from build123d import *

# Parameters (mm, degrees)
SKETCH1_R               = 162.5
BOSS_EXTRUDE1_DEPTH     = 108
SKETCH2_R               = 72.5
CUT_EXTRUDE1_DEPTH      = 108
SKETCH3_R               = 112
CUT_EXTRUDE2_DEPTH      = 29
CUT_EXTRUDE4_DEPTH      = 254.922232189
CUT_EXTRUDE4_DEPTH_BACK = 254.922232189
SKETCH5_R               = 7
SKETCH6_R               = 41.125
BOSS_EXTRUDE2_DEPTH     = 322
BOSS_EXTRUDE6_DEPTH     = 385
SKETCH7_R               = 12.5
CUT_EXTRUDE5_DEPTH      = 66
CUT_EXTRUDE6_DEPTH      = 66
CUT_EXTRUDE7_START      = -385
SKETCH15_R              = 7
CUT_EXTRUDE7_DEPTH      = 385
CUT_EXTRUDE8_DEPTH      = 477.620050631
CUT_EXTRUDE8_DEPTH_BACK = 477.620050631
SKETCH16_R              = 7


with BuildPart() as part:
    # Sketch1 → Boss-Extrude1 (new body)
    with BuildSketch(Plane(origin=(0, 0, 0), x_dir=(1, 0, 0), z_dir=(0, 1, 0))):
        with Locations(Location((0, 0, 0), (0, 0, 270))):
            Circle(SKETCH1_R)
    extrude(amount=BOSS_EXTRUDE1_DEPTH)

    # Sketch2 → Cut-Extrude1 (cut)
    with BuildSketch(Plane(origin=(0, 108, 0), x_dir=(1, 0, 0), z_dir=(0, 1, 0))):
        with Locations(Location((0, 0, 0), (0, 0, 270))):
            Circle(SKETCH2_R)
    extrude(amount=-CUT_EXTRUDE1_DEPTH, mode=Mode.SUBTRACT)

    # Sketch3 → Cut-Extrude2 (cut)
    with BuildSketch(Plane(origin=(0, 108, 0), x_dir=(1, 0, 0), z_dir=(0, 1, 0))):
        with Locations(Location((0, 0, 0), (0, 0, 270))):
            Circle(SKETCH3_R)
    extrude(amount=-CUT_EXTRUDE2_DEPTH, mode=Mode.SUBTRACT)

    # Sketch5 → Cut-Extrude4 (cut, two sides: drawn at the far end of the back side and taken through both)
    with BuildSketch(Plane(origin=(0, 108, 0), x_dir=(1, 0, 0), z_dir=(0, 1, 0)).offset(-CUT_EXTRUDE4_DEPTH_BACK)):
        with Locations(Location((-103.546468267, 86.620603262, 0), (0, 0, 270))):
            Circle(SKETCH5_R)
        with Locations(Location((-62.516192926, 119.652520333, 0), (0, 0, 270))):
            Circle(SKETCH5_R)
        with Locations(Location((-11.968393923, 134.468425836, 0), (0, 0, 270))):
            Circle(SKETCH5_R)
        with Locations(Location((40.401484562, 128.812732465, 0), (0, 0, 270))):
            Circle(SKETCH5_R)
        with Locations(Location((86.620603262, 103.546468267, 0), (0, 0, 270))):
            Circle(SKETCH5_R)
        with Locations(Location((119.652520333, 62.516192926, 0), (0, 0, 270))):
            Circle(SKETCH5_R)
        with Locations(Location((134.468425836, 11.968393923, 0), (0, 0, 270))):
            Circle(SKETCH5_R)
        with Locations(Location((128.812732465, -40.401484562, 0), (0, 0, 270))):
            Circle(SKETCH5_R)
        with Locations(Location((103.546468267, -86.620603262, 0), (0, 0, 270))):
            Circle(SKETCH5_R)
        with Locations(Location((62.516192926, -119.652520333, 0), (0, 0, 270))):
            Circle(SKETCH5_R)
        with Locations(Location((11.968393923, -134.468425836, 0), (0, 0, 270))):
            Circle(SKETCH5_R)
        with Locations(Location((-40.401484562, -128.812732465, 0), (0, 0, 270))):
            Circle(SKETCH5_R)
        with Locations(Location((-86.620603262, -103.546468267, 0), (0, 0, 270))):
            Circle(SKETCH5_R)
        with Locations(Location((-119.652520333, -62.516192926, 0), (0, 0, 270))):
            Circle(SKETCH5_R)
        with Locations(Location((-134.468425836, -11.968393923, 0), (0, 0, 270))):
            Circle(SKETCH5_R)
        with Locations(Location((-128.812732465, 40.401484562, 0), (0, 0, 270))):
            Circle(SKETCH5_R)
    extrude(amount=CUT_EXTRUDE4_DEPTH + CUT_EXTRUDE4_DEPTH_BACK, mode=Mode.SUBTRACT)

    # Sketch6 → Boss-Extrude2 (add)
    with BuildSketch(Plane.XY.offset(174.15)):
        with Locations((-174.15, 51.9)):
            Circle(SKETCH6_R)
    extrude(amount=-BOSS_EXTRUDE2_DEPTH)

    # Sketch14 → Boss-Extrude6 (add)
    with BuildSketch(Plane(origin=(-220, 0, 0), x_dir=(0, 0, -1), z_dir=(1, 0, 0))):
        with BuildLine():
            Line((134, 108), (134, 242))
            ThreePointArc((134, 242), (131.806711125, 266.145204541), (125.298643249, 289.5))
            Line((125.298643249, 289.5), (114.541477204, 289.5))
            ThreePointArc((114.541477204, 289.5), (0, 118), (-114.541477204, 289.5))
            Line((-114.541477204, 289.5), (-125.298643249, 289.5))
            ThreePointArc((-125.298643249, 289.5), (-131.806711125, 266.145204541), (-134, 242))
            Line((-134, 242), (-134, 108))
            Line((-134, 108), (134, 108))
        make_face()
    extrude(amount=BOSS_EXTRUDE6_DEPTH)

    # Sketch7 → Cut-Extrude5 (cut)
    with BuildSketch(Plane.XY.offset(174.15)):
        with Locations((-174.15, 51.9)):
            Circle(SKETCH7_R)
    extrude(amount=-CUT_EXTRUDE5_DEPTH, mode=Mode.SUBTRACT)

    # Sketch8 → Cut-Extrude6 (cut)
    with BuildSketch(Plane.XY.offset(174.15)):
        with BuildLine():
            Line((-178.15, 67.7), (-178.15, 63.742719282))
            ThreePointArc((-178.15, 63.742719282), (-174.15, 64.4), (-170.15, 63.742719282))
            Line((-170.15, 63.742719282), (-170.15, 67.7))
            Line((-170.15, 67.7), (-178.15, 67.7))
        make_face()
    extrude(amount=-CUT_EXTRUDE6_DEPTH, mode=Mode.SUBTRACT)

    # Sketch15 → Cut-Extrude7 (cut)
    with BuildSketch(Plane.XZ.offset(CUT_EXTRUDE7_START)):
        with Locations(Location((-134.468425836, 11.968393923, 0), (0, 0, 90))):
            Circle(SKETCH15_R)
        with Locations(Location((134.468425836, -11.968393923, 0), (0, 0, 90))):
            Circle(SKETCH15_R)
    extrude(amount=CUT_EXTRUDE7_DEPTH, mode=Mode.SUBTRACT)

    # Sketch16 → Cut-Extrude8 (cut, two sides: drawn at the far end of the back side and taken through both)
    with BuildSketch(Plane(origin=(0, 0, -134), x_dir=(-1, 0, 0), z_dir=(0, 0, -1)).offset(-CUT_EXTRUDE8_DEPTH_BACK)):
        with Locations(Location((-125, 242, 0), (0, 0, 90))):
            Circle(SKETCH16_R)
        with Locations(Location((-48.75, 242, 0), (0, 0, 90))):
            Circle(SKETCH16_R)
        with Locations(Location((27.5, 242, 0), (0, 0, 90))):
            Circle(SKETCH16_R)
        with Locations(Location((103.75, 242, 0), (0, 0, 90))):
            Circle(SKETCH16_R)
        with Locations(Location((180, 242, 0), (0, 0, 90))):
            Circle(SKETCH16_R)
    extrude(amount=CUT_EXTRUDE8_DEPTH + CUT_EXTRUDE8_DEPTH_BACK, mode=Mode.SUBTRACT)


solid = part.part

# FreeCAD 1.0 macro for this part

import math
import FreeCAD as App
import Part
import Sketcher
from FreeCAD import Vector

doc = App.newDocument("Part")
body = doc.addObject("PartDesign::Body", "Body")

sketch1 = body.newObject("Sketcher::SketchObject", "Sketch")
sketch1.AttachmentSupport = (doc.getObject("XZ_Plane"), [""])
sketch1.MapMode = "FlatFace"
sketch1.addGeometry(Part.Circle(Vector(0, 0, 0), Vector(0, 0, 1), 162), False)
sketch1.addConstraint([
    Sketcher.Constraint("Coincident", 0, 3, -1, 1),
    Sketcher.Constraint("Diameter", 0, 325.0),
])
pad1 = body.newObject("PartDesign::Pad", "Pad")
pad1.Profile = sketch1
pad1.Length = 108
pad1.Reversed = True

sketch2 = body.newObject("Sketcher::SketchObject", "Sketch001")
sketch2.AttachmentSupport = (doc.getObject("XZ_Plane"), [""])
sketch2.MapMode = "FlatFace"
sketch2.AttachmentOffset = App.Placement(Vector(0, 0, -108), App.Rotation())
sketch2.addGeometry(Part.Circle(Vector(0, 0, 0), Vector(0, 0, 1), 72), False)
sketch2.addConstraint([
    Sketcher.Constraint("Coincident", 0, 3, -1, 1),
    Sketcher.Constraint("Diameter", 0, 145.0),
])
pocket1 = body.newObject("PartDesign::Pocket", "Pocket")
pocket1.Profile = sketch2
pocket1.Length = 108
pocket1.Reversed = True

sketch3 = body.newObject("Sketcher::SketchObject", "Sketch002")
sketch3.AttachmentSupport = (doc.getObject("XZ_Plane"), [""])
sketch3.MapMode = "FlatFace"
sketch3.AttachmentOffset = App.Placement(Vector(0, 0, -108), App.Rotation())
sketch3.addGeometry(Part.Circle(Vector(0, 0, 0), Vector(0, 0, 1), 112), False)
sketch3.addConstraint([
    Sketcher.Constraint("Coincident", 0, 3, -1, 1),
    Sketcher.Constraint("Diameter", 0, 224.0),
])
pocket2 = body.newObject("PartDesign::Pocket", "Pocket001")
pocket2.Profile = sketch3
pocket2.Length = 29
pocket2.Reversed = True

sketch4 = body.newObject("Sketcher::SketchObject", "Sketch003")
sketch4.AttachmentSupport = (doc.getObject("XZ_Plane"), [""])
sketch4.MapMode = "FlatFace"
sketch4.AttachmentOffset = App.Placement(Vector(0, 0, -108), App.Rotation())
sketch4.addGeometry([
    Part.Circle(Vector(-104, -87, 0), Vector(0, 0, 1), 7),
    Part.Circle(Vector(-63, -120, 0), Vector(0, 0, 1), 7),
    Part.Circle(Vector(-12, -134, 0), Vector(0, 0, 1), 7),
    Part.Circle(Vector(40, -129, 0), Vector(0, 0, 1), 7),
    Part.Circle(Vector(87, -104, 0), Vector(0, 0, 1), 7),
    Part.Circle(Vector(120, -63, 0), Vector(0, 0, 1), 7),
    Part.Circle(Vector(134, -12, 0), Vector(0, 0, 1), 7),
    Part.Circle(Vector(129, 40, 0), Vector(0, 0, 1), 7),
    Part.Circle(Vector(104, 87, 0), Vector(0, 0, 1), 7),
    Part.Circle(Vector(63, 120, 0), Vector(0, 0, 1), 7),
    Part.Circle(Vector(12, 134, 0), Vector(0, 0, 1), 7),
    Part.Circle(Vector(-40, 129, 0), Vector(0, 0, 1), 7),
    Part.Circle(Vector(-87, 104, 0), Vector(0, 0, 1), 7),
    Part.Circle(Vector(-120, 63, 0), Vector(0, 0, 1), 7),
    Part.Circle(Vector(-134, 12, 0), Vector(0, 0, 1), 7),
    Part.Circle(Vector(-129, -40, 0), Vector(0, 0, 1), 7),
], False)
sketch4.addConstraint([
    Sketcher.Constraint("Equal", 0, 1),
    Sketcher.Constraint("Equal", 1, 2),
    Sketcher.Constraint("Equal", 2, 3),
    Sketcher.Constraint("Equal", 3, 4),
    Sketcher.Constraint("Equal", 4, 5),
    Sketcher.Constraint("Equal", 5, 6),
    Sketcher.Constraint("Equal", 6, 7),
    Sketcher.Constraint("Equal", 7, 8),
    Sketcher.Constraint("Equal", 8, 9),
    Sketcher.Constraint("Equal", 9, 10),
    Sketcher.Constraint("Equal", 10, 11),
    Sketcher.Constraint("Equal", 11, 12),
    Sketcher.Constraint("Equal", 12, 13),
    Sketcher.Constraint("Equal", 13, 14),
    Sketcher.Constraint("Equal", 14, 15),
    Sketcher.Constraint("Symmetric", 0, 3, 8, 3, -1, 1),
    Sketcher.Constraint("Symmetric", 1, 3, 9, 3, -1, 1),
    Sketcher.Constraint("Symmetric", 2, 3, 10, 3, -1, 1),
    Sketcher.Constraint("Symmetric", 3, 3, 11, 3, -1, 1),
    Sketcher.Constraint("Symmetric", 4, 3, 12, 3, -1, 1),
    Sketcher.Constraint("Symmetric", 5, 3, 13, 3, -1, 1),
    Sketcher.Constraint("Symmetric", 6, 3, 14, 3, -1, 1),
    Sketcher.Constraint("Symmetric", 7, 3, 15, 3, -1, 1),
    Sketcher.Constraint("Diameter", 0, 14.0),
    Sketcher.Constraint("DistanceX", 1, 3, 2, 3, 50.547799),
    Sketcher.Constraint("DistanceY", 5, 3, 6, 3, 50.547799),
    Sketcher.Constraint("DistanceX", 0, 3, -1, 1, 103.546468),
    Sketcher.Constraint("DistanceY", 1, 3, -1, 1, 119.65252),
    Sketcher.Constraint("DistanceY", 4, 3, -1, 1, 103.546468),
    Sketcher.Constraint("DistanceX", -1, 1, 5, 3, 119.65252),
    Sketcher.Constraint("DistanceX", 2, 3, 3, 3, 52.369878),
    Sketcher.Constraint("DistanceY", 3, 3, 0, 3, 42.192129),
    Sketcher.Constraint("DistanceX", 3, 3, 4, 3, 46.219119),
    Sketcher.Constraint("DistanceX", 0, 3, 4, 3, 190.167072),
    Sketcher.Constraint("DistanceY", 3, 3, 5, 3, 66.29654),
    Sketcher.Constraint("DistanceX", 3, 3, 6, 3, 94.066941),
    Sketcher.Constraint("DistanceY", 2, 3, 6, 3, 122.500032),
    Sketcher.Constraint("DistanceY", 6, 3, 7, 3, 52.369878),
    Sketcher.Constraint("DistanceX", 4, 3, 7, 3, 42.192129),
    Sketcher.Constraint("DistanceY", 7, 3, 8, 3, 46.219119),
])
pocket3 = body.newObject("PartDesign::Pocket", "Pocket002")
pocket3.Profile = sketch4
pocket3.Type = "ThroughAll"
pocket3.Midplane = True

sketch5 = body.newObject("Sketcher::SketchObject", "Sketch004")
sketch5.AttachmentSupport = (doc.getObject("XY_Plane"), [""])
sketch5.MapMode = "FlatFace"
sketch5.AttachmentOffset = App.Placement(Vector(0, 0, 174.15), App.Rotation())
sketch5.addGeometry(Part.Circle(Vector(-174, 52, 0), Vector(0, 0, 1), 41), False)
sketch5.addConstraint([
    Sketcher.Constraint("Diameter", 0, 82.25),
    Sketcher.Constraint("DistanceY", -1, 1, 0, 3, 51.9),
    Sketcher.Constraint("DistanceX", 0, 3, -1, 1, 174.15),
])
pad2 = body.newObject("PartDesign::Pad", "Pad001")
pad2.Profile = sketch5
pad2.Length = 322
pad2.Reversed = True

sketch6 = body.newObject("Sketcher::SketchObject", "Sketch005")
sketch6.AttachmentSupport = (doc.getObject("YZ_Plane"), [""])
sketch6.MapMode = "FlatFace"
sketch6.AttachmentOffset = App.Placement(Vector(0, 0, -220), App.Rotation())
sketch6.addGeometry([
    Part.LineSegment(Vector(108, -134, 0), Vector(242, -134, 0)),
    Part.ArcOfCircle(Part.Circle(Vector(242, 0, 0), Vector(0, 0, 1), 134), math.radians(-90), math.radians(-69)),
    Part.LineSegment(Vector(290, -125, 0), Vector(290, -115, 0)),
    Part.ArcOfCircle(Part.Circle(Vector(242, 0, 0), Vector(0, 0, 1), 124), math.radians(67), math.radians(293)),
    Part.LineSegment(Vector(290, 115, 0), Vector(290, 125, 0)),
    Part.ArcOfCircle(Part.Circle(Vector(242, 0, 0), Vector(0, 0, 1), 134), math.radians(69), math.radians(90)),
    Part.LineSegment(Vector(242, 134, 0), Vector(108, 134, 0)),
    Part.LineSegment(Vector(108, 134, 0), Vector(108, -134, 0)),
], False)
sketch6.addConstraint([
    Sketcher.Constraint("Tangent", 0, 2, 1, 1),
    Sketcher.Constraint("Coincident", 1, 2, 2, 1),
    Sketcher.Constraint("Coincident", 2, 2, 3, 2),
    Sketcher.Constraint("Coincident", 3, 1, 4, 1),
    Sketcher.Constraint("Coincident", 4, 2, 5, 1),
    Sketcher.Constraint("Tangent", 5, 2, 6, 1),
    Sketcher.Constraint("Coincident", 6, 2, 7, 1),
    Sketcher.Constraint("Coincident", 7, 2, 0, 1),
    Sketcher.Constraint("Horizontal", 0),
    Sketcher.Constraint("Vertical", 2),
    Sketcher.Constraint("Vertical", 4),
    Sketcher.Constraint("Horizontal", 6),
    Sketcher.Constraint("Vertical", 7),
    Sketcher.Constraint("Coincident", 3, 3, 1, 3),
    Sketcher.Constraint("Coincident", 5, 3, 1, 3),
    Sketcher.Constraint("Equal", 1, 5),
    Sketcher.Constraint("Symmetric", 2, 2, 3, 1, -1),
    Sketcher.Constraint("Radius", 1, 134.0),
    Sketcher.Constraint("Radius", 3, 124.0),
    Sketcher.Constraint("DistanceX", 0, 1, 0, 2, 134.0),
    Sketcher.Constraint("DistanceX", -1, 1, 1, 3, 242.0),
    Sketcher.Constraint("DistanceX", -1, 1, 1, 2, 289.5),
])
pad3 = body.newObject("PartDesign::Pad", "Pad002")
pad3.Profile = sketch6
pad3.Length = 385

sketch7 = body.newObject("Sketcher::SketchObject", "Sketch006")
sketch7.AttachmentSupport = (doc.getObject("XY_Plane"), [""])
sketch7.MapMode = "FlatFace"
sketch7.AttachmentOffset = App.Placement(Vector(0, 0, 174.15), App.Rotation())
sketch7.addGeometry(Part.Circle(Vector(-174, 52, 0), Vector(0, 0, 1), 12), False)
sketch7.addConstraint([
    Sketcher.Constraint("Diameter", 0, 25.0),
    Sketcher.Constraint("DistanceY", -1, 1, 0, 3, 51.9),
    Sketcher.Constraint("DistanceX", 0, 3, -1, 1, 174.15),
])
pocket4 = body.newObject("PartDesign::Pocket", "Pocket003")
pocket4.Profile = sketch7
pocket4.Length = 66

sketch8 = body.newObject("Sketcher::SketchObject", "Sketch007")
sketch8.AttachmentSupport = (doc.getObject("XY_Plane"), [""])
sketch8.MapMode = "FlatFace"
sketch8.AttachmentOffset = App.Placement(Vector(0, 0, 174.15), App.Rotation())
sketch8.addGeometry([
    Part.LineSegment(Vector(-178.2, 67.7, 0), Vector(-178.2, 63.7, 0)),
    Part.ArcOfCircle(Part.Circle(Vector(-174.2, 51.9, 0), Vector(0, 0, 1), 12.5), math.radians(71), math.radians(109)),
    Part.LineSegment(Vector(-170.2, 63.7, 0), Vector(-170.2, 67.7, 0)),
    Part.LineSegment(Vector(-170.2, 67.7, 0), Vector(-178.2, 67.7, 0)),
], False)
sketch8.addConstraint([
    Sketcher.Constraint("Coincident", 0, 2, 1, 2),
    Sketcher.Constraint("Coincident", 1, 1, 2, 1),
    Sketcher.Constraint("Coincident", 2, 2, 3, 1),
    Sketcher.Constraint("Coincident", 3, 2, 0, 1),
    Sketcher.Constraint("Vertical", 0),
    Sketcher.Constraint("Vertical", 2),
    Sketcher.Constraint("Horizontal", 3),
    Sketcher.Constraint("Horizontal", 0, 2, 1, 1),
    Sketcher.Constraint("Radius", 1, 12.5),
    Sketcher.Constraint("DistanceX", 3, 2, 3, 1, 8.0),
    Sketcher.Constraint("DistanceY", -1, 1, 1, 3, 51.9),
    Sketcher.Constraint("DistanceY", -1, 1, 2, 2, 67.7),
    Sketcher.Constraint("DistanceX", 1, 3, -1, 1, 174.15),
])
pocket5 = body.newObject("PartDesign::Pocket", "Pocket004")
pocket5.Profile = sketch8
pocket5.Length = 66

sketch9 = body.newObject("Sketcher::SketchObject", "Sketch008")
sketch9.AttachmentSupport = (doc.getObject("XZ_Plane"), [""])
sketch9.MapMode = "FlatFace"
sketch9.AttachmentOffset = App.Placement(Vector(0, 0, -385), App.Rotation())
sketch9.addGeometry([
    Part.Circle(Vector(-134, 12, 0), Vector(0, 0, 1), 7),
    Part.Circle(Vector(134, -12, 0), Vector(0, 0, 1), 7),
], False)
sketch9.addConstraint([
    Sketcher.Constraint("Equal", 0, 1),
    Sketcher.Constraint("Symmetric", 0, 3, 1, 3, -1, 1),
    Sketcher.Constraint("Diameter", 0, 14.0),
    Sketcher.Constraint("DistanceX", 0, 3, 1, 3, 268.936852),
    Sketcher.Constraint("DistanceY", -1, 1, 0, 3, 11.968394),
])
pocket6 = body.newObject("PartDesign::Pocket", "Pocket005")
pocket6.Profile = sketch9
pocket6.Length = 385
pocket6.Reversed = True

sketch10 = body.newObject("Sketcher::SketchObject", "Sketch009")
sketch10.AttachmentSupport = (doc.getObject("XY_Plane"), [""])
sketch10.MapMode = "FlatFace"
sketch10.AttachmentOffset = App.Placement(Vector(0, 0, -134), App.Rotation())
sketch10.addGeometry([
    Part.Circle(Vector(125, 242, 0), Vector(0, 0, 1), 7),
    Part.Circle(Vector(49, 242, 0), Vector(0, 0, 1), 7),
    Part.Circle(Vector(-28, 242, 0), Vector(0, 0, 1), 7),
    Part.Circle(Vector(-104, 242, 0), Vector(0, 0, 1), 7),
    Part.Circle(Vector(-180, 242, 0), Vector(0, 0, 1), 7),
], False)
sketch10.addConstraint([
    Sketcher.Constraint("Equal", 0, 1),
    Sketcher.Constraint("Equal", 1, 2),
    Sketcher.Constraint("Equal", 2, 3),
    Sketcher.Constraint("Equal", 3, 4),
    Sketcher.Constraint("Horizontal", 0, 3, 1, 3),
    Sketcher.Constraint("Horizontal", 1, 3, 2, 3),
    Sketcher.Constraint("Horizontal", 2, 3, 3, 3),
    Sketcher.Constraint("Horizontal", 3, 3, 4, 3),
    Sketcher.Constraint("Diameter", 0, 14.0),
    Sketcher.Constraint("DistanceX", -1, 1, 0, 3, 125.0),
    Sketcher.Constraint("DistanceY", -1, 1, 0, 3, 242.0),
    Sketcher.Constraint("DistanceX", 4, 3, -1, 1, 180.0),
    Sketcher.Constraint("DistanceX", 2, 3, -1, 1, 27.5),
    Sketcher.Constraint("DistanceX", 3, 3, 1, 3, 152.5),
    Sketcher.Constraint("DistanceX", -1, 1, 1, 3, 48.75),
])
pocket7 = body.newObject("PartDesign::Pocket", "Pocket006")
pocket7.Profile = sketch10
pocket7.Type = "ThroughAll"
pocket7.Midplane = True

doc.recompute()
